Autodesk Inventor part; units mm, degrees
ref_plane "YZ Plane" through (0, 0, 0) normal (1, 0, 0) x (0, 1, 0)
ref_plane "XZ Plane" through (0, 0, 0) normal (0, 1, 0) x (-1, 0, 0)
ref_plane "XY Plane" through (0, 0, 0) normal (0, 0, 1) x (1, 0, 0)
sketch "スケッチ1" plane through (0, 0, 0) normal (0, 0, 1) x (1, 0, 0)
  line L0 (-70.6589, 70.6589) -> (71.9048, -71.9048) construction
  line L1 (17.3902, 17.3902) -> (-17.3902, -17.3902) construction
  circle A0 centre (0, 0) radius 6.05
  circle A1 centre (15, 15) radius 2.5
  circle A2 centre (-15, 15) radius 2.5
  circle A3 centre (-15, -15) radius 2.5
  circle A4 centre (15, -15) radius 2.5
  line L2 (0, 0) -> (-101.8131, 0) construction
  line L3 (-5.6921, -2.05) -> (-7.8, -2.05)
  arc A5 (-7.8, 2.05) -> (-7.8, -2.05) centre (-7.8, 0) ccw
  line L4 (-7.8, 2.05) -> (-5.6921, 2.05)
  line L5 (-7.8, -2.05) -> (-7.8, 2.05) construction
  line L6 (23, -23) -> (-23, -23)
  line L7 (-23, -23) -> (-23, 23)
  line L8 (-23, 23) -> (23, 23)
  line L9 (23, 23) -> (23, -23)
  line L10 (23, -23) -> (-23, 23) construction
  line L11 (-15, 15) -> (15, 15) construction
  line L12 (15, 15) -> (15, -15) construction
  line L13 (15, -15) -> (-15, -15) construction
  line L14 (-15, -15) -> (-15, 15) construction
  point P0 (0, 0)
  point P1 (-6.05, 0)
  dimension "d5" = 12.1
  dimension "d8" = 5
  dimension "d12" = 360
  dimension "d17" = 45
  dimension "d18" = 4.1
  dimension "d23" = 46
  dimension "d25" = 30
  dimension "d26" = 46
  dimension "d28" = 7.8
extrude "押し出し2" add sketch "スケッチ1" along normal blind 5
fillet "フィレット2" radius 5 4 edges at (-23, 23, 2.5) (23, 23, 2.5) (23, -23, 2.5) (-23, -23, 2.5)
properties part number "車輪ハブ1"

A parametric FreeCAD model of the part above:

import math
import FreeCAD as App
import Part
import Sketcher

V = App.Vector


def edges_at(feature, points):
    """Names of the edges that pass closest to the given points."""
    edges = feature.Shape.Edges
    near = lambda p: min(range(len(edges)), key=lambda i: edges[i].distToShape(Part.Vertex(*p))[0])
    return sorted({f"Edge{near(p) + 1}" for p in points})


def add_polygon(sketch, points):
    """Adds a closed chain of lines whose ends are joined by coincident constraints."""
    first, n = sketch.GeometryCount, len(points)
    for a, b in zip(points, points[1:] + points[:1]):
        sketch.addGeometry(Part.LineSegment(App.Vector(*a, 0), App.Vector(*b, 0)), False)
    for i in range(n):
        sketch.addConstraint(Sketcher.Constraint("Coincident", first + i, 2, first + (i + 1) % n, 1))

doc = App.newDocument("Part")
body = doc.addObject("PartDesign::Body", "Body")

# Sketch on XY plane
sketch1 = body.newObject("Sketcher::SketchObject", "Sketch")
sketch1.AttachmentSupport = (doc.getObject("XY_Plane"), [""])
sketch1.MapMode = "FlatFace"
add_polygon(sketch1, [(-23, -23), (23, -23), (23, 23), (-23, 23)])  # lines 0-3
sketch1.addGeometry(Part.Circle(V(-15, -15, 0), V(0, 0, 1), 2.5), False)  # 4
sketch1.addGeometry(Part.Circle(V(15, -15, 0), V(0, 0, 1), 2.5), False)  # 5
sketch1.addGeometry(Part.ArcOfCircle(Part.Circle(V(0, 0, 0), V(0, 0, 1), 6.05), math.radians(-160.193603), math.radians(160.193603)), False)  # 6
sketch1.addGeometry(Part.LineSegment(V(-5.6921, -2.05, 0), V(-7.8, -2.05, 0)), False)  # 7
sketch1.addGeometry(Part.ArcOfCircle(Part.Circle(V(-7.8, 0, 0), V(0, 0, 1), 2.05), math.radians(90), math.radians(270)), False)  # 8
sketch1.addGeometry(Part.LineSegment(V(-7.8, 2.05, 0), V(-5.6921, 2.05, 0)), False)  # 9
sketch1.addGeometry(Part.Circle(V(-15, 15, 0), V(0, 0, 1), 2.5), False)  # 10
sketch1.addGeometry(Part.Circle(V(15, 15, 0), V(0, 0, 1), 2.5), False)  # 11
sketch1.addConstraint([
    Sketcher.Constraint("Coincident", 6, 1, 7, 1),
    Sketcher.Constraint("Tangent", 7, 2, 8, 2),
    Sketcher.Constraint("Tangent", 8, 1, 9, 1),
    Sketcher.Constraint("Coincident", 9, 2, 6, 2),
    Sketcher.Constraint("Horizontal", 0),
    Sketcher.Constraint("Vertical", 1),
    Sketcher.Constraint("Horizontal", 2),
    Sketcher.Constraint("Vertical", 3),
    Sketcher.Constraint("Horizontal", 7),
    Sketcher.Constraint("Horizontal", 9),
    Sketcher.Constraint("Coincident", 6, 3, -1, 1),
    Sketcher.Constraint("Equal", 4, 5),
    Sketcher.Constraint("Equal", 5, 10),
    Sketcher.Constraint("Equal", 10, 11),
    Sketcher.Constraint("Symmetric", 5, 3, 10, 3, -1, 1),
    Sketcher.Constraint("Symmetric", 4, 3, 11, 3, -1, 1),
    Sketcher.Constraint("Symmetric", 0, 2, 2, 2, -1, 1),
    Sketcher.Constraint("Symmetric", 4, 3, 5, 3, -2),
    Sketcher.Constraint("PointOnObject", 8, 3, -1),
    Sketcher.Constraint("Equal", 2, 1),
    Sketcher.Constraint("Diameter", 4, 5.0),
    Sketcher.Constraint("DistanceX", 0, 1, 0, 2, 46.0),
    Sketcher.Constraint("Radius", 6, 6.05),
    Sketcher.Constraint("Radius", 8, 2.05),
    Sketcher.Constraint("DistanceX", 4, 3, 5, 3, 30.0),
    Sketcher.Constraint("DistanceY", 4, 3, 10, 3, 30.0),
    Sketcher.Constraint("DistanceX", 8, 3, -1, 1, 7.8),
])
pad1 = body.newObject("PartDesign::Pad", "Pad")
pad1.Profile = sketch1
pad1.Length = 5
doc.recompute()

fillet = body.newObject("PartDesign::Fillet", "Fillet")
fillet.Base = (pad1, edges_at(pad1, [
    (-23, 23, 2.5),
    (23, 23, 2.5),
    (23, -23, 2.5),
    (-23, -23, 2.5),
]))
fillet.Radius = 5

doc.recompute()
